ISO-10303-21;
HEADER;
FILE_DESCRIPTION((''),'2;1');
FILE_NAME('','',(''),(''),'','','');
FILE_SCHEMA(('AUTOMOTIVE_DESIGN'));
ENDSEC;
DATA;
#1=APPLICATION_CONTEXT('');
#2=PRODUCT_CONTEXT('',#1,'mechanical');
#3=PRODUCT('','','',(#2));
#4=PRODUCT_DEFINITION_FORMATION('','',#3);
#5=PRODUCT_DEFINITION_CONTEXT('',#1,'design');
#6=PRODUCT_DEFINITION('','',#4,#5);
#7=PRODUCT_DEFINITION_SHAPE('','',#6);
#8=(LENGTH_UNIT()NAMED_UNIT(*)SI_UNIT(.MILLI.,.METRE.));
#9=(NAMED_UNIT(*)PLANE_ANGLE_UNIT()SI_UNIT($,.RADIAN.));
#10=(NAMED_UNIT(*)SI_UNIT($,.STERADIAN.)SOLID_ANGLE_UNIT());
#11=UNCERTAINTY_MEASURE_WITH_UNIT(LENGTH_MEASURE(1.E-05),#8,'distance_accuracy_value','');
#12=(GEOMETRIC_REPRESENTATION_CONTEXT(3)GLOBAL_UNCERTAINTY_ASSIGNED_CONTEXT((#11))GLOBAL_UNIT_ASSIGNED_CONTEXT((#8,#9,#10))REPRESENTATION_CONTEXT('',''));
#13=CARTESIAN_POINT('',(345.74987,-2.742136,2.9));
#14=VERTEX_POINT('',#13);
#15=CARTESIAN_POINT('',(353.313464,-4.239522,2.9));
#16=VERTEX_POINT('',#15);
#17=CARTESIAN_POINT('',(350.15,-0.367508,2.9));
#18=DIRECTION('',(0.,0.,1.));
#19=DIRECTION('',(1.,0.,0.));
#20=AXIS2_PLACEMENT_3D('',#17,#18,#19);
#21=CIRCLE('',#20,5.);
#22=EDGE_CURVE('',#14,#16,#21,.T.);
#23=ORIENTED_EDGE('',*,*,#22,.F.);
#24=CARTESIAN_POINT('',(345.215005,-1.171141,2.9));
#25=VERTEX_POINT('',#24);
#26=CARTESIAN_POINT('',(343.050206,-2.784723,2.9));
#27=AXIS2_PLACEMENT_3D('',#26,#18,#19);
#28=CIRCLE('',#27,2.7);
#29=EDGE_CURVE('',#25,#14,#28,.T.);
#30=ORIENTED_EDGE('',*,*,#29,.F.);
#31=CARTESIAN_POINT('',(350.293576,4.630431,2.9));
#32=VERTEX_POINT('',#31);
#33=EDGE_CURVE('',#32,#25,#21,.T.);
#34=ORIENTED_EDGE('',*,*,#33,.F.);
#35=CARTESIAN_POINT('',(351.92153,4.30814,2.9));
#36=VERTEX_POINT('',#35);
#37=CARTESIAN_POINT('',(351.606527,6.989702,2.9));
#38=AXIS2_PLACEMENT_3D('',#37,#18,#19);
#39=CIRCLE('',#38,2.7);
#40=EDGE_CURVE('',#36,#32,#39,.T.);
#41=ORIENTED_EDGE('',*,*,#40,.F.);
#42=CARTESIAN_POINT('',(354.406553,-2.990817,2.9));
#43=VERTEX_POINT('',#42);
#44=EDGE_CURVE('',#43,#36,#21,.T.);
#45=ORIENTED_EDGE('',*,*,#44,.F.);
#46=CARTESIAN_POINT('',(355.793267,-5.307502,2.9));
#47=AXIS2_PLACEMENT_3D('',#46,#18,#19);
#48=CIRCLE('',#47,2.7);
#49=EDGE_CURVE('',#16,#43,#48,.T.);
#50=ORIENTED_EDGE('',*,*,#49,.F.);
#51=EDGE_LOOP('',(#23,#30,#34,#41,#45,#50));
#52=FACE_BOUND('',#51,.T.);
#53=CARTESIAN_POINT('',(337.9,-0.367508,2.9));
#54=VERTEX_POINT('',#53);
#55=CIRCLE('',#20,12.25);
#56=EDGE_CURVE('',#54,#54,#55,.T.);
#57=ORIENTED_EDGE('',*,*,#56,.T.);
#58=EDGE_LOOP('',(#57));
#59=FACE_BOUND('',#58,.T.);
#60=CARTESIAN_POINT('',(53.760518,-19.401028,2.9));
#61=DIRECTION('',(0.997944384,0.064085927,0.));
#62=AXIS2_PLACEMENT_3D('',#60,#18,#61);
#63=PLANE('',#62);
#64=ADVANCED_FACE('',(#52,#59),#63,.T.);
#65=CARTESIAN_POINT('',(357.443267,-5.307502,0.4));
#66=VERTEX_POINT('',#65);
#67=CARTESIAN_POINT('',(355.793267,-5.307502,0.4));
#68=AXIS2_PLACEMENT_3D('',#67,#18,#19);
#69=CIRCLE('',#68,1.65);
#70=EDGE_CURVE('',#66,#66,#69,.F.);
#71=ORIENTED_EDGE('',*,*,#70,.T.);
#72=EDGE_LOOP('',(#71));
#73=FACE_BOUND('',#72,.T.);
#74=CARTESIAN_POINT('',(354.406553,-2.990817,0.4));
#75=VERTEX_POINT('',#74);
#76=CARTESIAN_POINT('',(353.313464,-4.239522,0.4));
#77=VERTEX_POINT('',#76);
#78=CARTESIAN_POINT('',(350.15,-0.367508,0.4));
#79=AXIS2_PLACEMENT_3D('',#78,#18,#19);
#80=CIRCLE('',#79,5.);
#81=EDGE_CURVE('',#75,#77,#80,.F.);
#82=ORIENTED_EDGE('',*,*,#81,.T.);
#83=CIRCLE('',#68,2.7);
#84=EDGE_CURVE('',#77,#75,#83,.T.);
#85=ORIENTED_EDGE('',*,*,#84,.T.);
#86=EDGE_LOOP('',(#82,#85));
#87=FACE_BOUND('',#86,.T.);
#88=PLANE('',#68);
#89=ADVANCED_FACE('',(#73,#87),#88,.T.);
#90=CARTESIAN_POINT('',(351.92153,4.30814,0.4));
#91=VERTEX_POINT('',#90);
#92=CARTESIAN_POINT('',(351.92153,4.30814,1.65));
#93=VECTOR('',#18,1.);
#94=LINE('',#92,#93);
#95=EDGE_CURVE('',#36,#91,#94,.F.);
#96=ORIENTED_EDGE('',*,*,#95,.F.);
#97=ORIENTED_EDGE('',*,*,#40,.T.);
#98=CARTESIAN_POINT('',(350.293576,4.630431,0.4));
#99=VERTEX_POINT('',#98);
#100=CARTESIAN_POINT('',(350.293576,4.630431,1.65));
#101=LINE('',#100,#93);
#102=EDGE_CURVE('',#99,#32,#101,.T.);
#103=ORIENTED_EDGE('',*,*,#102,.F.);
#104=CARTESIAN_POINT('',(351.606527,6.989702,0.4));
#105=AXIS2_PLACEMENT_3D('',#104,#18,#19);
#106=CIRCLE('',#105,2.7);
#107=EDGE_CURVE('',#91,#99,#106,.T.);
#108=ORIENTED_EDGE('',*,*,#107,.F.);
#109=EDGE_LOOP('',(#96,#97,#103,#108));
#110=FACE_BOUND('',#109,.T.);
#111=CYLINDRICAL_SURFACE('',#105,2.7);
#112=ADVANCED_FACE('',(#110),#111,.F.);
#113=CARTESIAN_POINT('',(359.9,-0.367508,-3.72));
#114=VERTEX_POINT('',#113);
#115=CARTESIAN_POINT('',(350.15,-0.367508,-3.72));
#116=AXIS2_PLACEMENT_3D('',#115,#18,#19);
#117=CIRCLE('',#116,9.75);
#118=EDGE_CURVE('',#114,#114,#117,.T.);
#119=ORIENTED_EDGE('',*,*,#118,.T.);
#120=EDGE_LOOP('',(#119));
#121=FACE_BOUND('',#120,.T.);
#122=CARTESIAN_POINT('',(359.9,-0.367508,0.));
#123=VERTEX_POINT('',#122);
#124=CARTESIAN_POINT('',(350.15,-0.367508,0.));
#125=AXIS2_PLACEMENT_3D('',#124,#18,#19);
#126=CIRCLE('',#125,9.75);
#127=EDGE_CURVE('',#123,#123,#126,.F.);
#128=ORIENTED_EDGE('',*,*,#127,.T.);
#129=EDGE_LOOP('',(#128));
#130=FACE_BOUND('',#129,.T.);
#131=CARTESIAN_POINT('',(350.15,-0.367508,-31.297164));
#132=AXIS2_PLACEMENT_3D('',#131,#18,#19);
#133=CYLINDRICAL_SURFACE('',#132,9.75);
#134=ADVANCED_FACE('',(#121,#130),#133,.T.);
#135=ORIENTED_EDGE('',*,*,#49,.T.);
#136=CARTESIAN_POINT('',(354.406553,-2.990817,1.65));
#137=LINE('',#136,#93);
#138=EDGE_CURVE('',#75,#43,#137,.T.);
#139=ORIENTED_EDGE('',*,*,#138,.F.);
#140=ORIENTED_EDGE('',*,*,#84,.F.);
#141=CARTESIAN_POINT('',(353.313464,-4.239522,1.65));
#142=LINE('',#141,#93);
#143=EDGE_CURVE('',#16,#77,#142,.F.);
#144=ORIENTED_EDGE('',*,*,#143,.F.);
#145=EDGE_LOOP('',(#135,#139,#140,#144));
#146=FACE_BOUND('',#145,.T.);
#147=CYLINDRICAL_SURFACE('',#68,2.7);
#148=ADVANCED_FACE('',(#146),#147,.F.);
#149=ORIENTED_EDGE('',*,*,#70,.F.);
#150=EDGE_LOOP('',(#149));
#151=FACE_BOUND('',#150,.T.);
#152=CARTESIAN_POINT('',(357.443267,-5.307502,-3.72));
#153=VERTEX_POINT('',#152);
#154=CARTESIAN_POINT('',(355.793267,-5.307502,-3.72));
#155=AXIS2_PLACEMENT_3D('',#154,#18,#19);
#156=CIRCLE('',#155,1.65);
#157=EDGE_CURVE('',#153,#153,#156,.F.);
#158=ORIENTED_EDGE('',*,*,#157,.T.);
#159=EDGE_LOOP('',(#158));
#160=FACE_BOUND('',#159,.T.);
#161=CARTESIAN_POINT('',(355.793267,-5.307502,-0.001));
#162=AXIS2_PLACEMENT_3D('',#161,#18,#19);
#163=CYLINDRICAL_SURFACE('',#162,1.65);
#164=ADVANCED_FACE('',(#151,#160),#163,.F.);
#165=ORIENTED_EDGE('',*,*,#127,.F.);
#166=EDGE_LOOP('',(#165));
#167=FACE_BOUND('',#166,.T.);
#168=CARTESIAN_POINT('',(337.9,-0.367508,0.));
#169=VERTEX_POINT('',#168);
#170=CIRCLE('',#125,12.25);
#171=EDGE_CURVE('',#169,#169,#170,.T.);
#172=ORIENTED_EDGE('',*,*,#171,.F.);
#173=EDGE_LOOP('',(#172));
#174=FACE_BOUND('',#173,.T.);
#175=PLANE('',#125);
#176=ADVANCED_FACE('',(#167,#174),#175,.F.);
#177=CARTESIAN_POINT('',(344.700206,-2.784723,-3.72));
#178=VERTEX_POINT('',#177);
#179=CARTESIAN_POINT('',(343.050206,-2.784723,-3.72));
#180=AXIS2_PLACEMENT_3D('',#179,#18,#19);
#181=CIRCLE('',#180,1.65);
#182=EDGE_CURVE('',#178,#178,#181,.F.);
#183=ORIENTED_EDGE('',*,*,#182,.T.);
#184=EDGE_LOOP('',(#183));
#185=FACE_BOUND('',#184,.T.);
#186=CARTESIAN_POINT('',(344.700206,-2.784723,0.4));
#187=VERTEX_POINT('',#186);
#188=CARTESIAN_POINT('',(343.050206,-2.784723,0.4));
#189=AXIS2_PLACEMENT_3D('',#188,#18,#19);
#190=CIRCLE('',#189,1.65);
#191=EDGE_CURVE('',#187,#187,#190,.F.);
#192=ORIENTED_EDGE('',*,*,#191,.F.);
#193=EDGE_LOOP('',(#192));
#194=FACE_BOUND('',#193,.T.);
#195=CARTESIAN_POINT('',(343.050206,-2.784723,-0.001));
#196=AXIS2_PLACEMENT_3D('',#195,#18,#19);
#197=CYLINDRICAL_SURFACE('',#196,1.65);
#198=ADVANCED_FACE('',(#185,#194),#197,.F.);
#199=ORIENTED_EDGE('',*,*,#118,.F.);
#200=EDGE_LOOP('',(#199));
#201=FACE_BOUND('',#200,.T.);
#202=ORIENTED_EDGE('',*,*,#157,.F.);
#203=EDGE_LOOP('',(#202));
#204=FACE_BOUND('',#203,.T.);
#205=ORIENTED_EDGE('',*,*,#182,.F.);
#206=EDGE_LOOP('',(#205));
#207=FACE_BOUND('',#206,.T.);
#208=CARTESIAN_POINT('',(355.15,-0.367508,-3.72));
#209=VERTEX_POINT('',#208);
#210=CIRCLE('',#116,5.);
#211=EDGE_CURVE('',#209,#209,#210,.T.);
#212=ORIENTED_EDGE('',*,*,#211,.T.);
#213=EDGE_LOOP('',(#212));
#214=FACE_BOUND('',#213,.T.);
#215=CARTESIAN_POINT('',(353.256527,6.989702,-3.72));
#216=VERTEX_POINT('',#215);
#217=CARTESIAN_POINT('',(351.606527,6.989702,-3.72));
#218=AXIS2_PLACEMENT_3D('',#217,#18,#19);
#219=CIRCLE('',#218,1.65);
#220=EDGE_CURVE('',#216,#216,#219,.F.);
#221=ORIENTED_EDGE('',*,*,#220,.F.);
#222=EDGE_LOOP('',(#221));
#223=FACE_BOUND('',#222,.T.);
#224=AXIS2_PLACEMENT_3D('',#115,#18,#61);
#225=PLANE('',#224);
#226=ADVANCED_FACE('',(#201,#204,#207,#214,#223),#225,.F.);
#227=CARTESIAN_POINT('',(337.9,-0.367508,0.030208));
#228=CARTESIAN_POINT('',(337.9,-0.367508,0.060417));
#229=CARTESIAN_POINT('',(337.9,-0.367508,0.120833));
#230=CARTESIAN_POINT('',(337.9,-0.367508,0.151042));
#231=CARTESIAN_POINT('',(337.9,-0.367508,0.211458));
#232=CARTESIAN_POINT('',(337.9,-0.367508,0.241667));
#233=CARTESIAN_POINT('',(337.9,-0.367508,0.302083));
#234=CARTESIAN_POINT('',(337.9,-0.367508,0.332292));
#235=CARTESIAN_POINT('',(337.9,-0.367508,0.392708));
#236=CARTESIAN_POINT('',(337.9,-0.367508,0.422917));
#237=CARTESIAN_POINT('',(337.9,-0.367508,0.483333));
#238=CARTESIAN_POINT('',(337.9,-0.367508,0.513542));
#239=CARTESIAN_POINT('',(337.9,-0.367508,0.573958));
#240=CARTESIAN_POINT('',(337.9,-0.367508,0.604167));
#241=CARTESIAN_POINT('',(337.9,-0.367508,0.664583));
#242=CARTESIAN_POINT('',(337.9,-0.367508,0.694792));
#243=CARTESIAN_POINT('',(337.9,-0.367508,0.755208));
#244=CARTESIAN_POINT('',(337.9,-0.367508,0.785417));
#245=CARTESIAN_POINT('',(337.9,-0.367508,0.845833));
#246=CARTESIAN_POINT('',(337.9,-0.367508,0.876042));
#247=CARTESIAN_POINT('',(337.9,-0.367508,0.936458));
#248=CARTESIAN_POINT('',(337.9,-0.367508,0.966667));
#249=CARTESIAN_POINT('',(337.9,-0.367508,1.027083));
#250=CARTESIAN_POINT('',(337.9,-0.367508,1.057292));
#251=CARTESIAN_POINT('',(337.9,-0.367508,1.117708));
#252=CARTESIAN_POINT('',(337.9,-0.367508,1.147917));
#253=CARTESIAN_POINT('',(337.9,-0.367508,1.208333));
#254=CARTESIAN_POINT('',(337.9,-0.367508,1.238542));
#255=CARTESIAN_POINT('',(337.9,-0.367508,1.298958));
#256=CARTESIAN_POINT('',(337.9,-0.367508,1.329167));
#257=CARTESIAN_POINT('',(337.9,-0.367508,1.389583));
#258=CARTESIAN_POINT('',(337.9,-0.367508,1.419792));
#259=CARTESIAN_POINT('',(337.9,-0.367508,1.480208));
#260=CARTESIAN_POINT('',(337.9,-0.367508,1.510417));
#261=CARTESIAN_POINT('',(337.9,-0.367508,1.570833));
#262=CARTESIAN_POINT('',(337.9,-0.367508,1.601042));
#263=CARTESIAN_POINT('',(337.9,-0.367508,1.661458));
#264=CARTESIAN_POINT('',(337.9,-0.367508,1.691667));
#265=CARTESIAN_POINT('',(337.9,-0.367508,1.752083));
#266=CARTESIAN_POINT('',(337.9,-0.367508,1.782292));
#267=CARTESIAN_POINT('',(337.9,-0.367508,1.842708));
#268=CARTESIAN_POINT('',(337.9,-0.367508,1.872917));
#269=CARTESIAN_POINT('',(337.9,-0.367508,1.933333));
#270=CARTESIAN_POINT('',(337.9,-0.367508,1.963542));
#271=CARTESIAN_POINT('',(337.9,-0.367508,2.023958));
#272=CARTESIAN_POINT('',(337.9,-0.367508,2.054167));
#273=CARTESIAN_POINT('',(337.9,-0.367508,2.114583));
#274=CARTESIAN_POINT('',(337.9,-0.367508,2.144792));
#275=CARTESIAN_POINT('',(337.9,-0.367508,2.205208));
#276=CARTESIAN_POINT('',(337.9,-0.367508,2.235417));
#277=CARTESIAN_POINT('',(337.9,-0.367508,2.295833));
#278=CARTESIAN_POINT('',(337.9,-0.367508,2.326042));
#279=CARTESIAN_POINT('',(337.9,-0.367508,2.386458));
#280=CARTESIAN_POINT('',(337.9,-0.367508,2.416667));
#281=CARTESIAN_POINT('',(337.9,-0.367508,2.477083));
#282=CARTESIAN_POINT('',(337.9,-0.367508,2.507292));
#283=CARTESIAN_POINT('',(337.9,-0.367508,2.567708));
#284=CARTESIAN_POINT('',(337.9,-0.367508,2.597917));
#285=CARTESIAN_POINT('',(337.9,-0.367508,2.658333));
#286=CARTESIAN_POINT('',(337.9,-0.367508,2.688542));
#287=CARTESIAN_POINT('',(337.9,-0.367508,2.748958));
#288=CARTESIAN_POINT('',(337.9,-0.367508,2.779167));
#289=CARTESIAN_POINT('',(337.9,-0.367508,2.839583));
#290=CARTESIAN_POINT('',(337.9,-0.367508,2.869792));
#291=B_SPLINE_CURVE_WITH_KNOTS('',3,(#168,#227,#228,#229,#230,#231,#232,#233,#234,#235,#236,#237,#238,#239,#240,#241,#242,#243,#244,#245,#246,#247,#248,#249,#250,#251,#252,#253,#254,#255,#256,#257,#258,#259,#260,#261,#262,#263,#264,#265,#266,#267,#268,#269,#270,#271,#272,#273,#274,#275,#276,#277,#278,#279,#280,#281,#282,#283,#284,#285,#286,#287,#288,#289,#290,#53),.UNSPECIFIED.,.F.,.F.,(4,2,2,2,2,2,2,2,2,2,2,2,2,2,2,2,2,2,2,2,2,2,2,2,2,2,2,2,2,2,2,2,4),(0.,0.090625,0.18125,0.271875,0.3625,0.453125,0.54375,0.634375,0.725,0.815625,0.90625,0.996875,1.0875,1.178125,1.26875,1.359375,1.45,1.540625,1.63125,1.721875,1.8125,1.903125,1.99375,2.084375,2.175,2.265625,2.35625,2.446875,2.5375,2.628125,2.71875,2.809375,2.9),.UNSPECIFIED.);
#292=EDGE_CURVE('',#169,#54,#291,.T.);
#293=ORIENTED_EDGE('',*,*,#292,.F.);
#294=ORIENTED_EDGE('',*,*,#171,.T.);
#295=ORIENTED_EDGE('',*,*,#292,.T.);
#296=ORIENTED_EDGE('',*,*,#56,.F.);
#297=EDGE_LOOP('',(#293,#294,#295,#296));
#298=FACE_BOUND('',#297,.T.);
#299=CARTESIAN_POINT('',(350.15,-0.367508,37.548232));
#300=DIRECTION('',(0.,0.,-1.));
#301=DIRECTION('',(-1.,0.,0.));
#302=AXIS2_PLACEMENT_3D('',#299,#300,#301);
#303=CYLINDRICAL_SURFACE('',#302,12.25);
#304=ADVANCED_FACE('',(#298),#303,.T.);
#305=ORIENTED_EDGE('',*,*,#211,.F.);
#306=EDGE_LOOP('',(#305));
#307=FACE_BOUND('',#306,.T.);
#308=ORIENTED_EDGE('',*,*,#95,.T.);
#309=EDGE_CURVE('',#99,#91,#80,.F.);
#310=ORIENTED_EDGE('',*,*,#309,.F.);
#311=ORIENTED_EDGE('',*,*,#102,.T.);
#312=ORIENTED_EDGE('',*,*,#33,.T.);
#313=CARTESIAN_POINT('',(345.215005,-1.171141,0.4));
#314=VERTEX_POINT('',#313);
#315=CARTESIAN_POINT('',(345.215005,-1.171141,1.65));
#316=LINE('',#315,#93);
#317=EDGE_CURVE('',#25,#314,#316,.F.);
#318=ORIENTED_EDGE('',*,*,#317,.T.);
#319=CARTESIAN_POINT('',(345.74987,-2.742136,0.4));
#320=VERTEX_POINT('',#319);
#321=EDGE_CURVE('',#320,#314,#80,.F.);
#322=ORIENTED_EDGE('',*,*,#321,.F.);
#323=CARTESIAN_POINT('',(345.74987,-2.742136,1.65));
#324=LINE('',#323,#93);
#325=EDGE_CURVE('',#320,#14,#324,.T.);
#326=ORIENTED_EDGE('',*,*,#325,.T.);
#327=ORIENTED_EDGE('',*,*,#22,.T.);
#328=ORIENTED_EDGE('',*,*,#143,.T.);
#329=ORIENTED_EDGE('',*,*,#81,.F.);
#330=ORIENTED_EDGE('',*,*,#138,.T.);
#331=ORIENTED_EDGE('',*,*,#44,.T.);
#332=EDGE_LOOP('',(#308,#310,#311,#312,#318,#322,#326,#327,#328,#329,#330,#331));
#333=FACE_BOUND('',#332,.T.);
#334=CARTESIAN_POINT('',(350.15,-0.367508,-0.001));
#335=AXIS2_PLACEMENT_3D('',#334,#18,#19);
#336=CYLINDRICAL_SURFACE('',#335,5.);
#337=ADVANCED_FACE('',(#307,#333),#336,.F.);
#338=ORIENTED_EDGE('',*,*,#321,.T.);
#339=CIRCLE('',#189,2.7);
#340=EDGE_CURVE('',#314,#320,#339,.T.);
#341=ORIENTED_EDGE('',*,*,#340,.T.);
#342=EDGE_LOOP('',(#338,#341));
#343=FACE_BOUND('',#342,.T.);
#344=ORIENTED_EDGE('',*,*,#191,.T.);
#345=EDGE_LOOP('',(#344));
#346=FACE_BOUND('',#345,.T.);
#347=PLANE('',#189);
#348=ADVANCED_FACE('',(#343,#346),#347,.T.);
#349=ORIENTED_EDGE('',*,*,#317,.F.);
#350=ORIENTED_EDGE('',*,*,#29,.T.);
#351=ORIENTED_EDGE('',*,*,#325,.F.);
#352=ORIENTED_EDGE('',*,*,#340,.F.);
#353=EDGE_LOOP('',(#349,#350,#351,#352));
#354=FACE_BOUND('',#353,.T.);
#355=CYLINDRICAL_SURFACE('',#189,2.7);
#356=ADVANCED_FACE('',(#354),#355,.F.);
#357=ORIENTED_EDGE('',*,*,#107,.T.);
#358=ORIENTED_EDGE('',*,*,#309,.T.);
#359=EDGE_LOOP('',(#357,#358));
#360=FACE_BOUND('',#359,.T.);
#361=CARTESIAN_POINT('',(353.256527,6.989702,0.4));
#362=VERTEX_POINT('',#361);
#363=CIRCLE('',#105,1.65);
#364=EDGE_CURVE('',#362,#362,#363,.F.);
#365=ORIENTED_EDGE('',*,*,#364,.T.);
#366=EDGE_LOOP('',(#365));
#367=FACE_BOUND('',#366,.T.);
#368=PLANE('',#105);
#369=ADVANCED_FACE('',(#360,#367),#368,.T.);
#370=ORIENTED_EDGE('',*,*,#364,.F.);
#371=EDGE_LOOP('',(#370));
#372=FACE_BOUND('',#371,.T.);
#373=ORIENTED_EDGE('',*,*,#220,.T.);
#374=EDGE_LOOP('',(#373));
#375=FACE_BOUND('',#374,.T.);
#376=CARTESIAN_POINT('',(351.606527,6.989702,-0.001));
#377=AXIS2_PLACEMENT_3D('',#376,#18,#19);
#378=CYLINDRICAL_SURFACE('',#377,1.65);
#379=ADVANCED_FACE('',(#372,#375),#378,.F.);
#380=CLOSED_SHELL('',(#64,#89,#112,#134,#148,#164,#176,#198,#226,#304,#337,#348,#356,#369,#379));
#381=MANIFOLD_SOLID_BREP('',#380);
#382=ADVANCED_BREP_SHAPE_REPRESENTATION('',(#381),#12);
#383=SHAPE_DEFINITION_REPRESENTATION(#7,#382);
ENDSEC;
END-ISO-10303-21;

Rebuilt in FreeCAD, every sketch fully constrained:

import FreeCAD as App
import Part
import Sketcher
from FreeCAD import Vector

doc = App.newDocument("Part")
body = doc.addObject("PartDesign::Body", "Body")

sketch1 = doc.addObject("Sketcher::SketchObject", "Sketch")
body.addObject(sketch1)
sketch1.AttachmentSupport = (doc.XY_Plane, [""])
sketch1.MapMode = "FlatFace"
sketch1.addGeometry(Part.Circle(Vector(350.15, -0.367508, 0), Vector(0, 0, 1), 12.25), False)
sketch1.addConstraint([
    Sketcher.Constraint("Diameter", 0, 24.5),
    Sketcher.Constraint("DistanceX", -1, 1, 0, 3, 350.15),
    Sketcher.Constraint("DistanceY", 0, 3, -1, 1, 0.367508),
])
pad1 = doc.addObject("PartDesign::Pad", "Pad")
body.addObject(pad1)
pad1.Profile = sketch1
pad1.Length = 2.9

sketch2 = doc.addObject("Sketcher::SketchObject", "Sketch001")
body.addObject(sketch2)
sketch2.AttachmentSupport = (doc.XY_Plane, [""])
sketch2.MapMode = "FlatFace"
sketch2.AttachmentOffset = App.Placement(Vector(0, 0, 2.9), App.Rotation())
sketch2.addGeometry(Part.Circle(Vector(350.15, -0.367508, 0), Vector(0, 0, 1), 5), False)
sketch2.addConstraint([
    Sketcher.Constraint("Diameter", 0, 10.0),
    Sketcher.Constraint("DistanceX", -1, 1, 0, 3, 350.15),
    Sketcher.Constraint("DistanceY", 0, 3, -1, 1, 0.367508),
])
pocket1 = doc.addObject("PartDesign::Pocket", "Pocket")
body.addObject(pocket1)
pocket1.Profile = sketch2
pocket1.Type = "UpToFirst"

sketch3 = doc.addObject("Sketcher::SketchObject", "Sketch002")
body.addObject(sketch3)
sketch3.AttachmentSupport = (doc.XY_Plane, [""])
sketch3.MapMode = "FlatFace"
sketch3.AttachmentOffset = App.Placement(Vector(0, 0, 2.9), App.Rotation())
sketch3.addGeometry(Part.Circle(Vector(343.050206, -2.784723, 0), Vector(0, 0, 1), 1.65), False)
sketch3.addConstraint([
    Sketcher.Constraint("Diameter", 0, 3.3),
    Sketcher.Constraint("DistanceX", -1, 1, 0, 3, 343.050206),
    Sketcher.Constraint("DistanceY", 0, 3, -1, 1, 2.784723),
])
pocket2 = doc.addObject("PartDesign::Pocket", "Pocket001")
body.addObject(pocket2)
pocket2.Profile = sketch3
pocket2.Type = "UpToFirst"

sketch4 = doc.addObject("Sketcher::SketchObject", "Sketch003")
body.addObject(sketch4)
sketch4.AttachmentSupport = (doc.XY_Plane, [""])
sketch4.MapMode = "FlatFace"
sketch4.AttachmentOffset = App.Placement(Vector(0, 0, 2.9), App.Rotation())
sketch4.addGeometry(Part.Circle(Vector(355.793267, -5.307502, 0), Vector(0, 0, 1), 1.65), False)
sketch4.addConstraint([
    Sketcher.Constraint("Diameter", 0, 3.3),
    Sketcher.Constraint("DistanceY", 0, 3, -1, 1, 5.307502),
    Sketcher.Constraint("DistanceX", -1, 1, 0, 3, 355.793267),
])
pocket3 = doc.addObject("PartDesign::Pocket", "Pocket002")
body.addObject(pocket3)
pocket3.Profile = sketch4
pocket3.Type = "UpToFirst"

sketch5 = doc.addObject("Sketcher::SketchObject", "Sketch004")
body.addObject(sketch5)
sketch5.AttachmentSupport = (doc.XY_Plane, [""])
sketch5.MapMode = "FlatFace"
sketch5.AttachmentOffset = App.Placement(Vector(0, 0, 2.9), App.Rotation())
sketch5.addGeometry(Part.Circle(Vector(351.606527, 6.989702, 0), Vector(0, 0, 1), 1.65), False)
sketch5.addConstraint([
    Sketcher.Constraint("Diameter", 0, 3.3),
    Sketcher.Constraint("DistanceY", -1, 1, 0, 3, 6.989702),
    Sketcher.Constraint("DistanceX", -1, 1, 0, 3, 351.606527),
])
pocket4 = doc.addObject("PartDesign::Pocket", "Pocket003")
body.addObject(pocket4)
pocket4.Profile = sketch5
pocket4.Type = "UpToFirst"

sketch6 = doc.addObject("Sketcher::SketchObject", "Sketch005")
body.addObject(sketch6)
sketch6.AttachmentSupport = (doc.XY_Plane, [""])
sketch6.MapMode = "FlatFace"
sketch6.addGeometry([
    Part.Circle(Vector(350.15, -0.367508, 0), Vector(0, 0, 1), 9.75),
    Part.Circle(Vector(350.15, -0.367508, 0), Vector(0, 0, 1), 5),
], False)
sketch6.addConstraint([
    Sketcher.Constraint("Coincident", 1, 3, 0, 3),
    Sketcher.Constraint("Diameter", 1, 10.0),
    Sketcher.Constraint("Diameter", 0, 19.5),
    Sketcher.Constraint("DistanceX", -1, 1, 0, 3, 350.15),
    Sketcher.Constraint("DistanceY", 0, 3, -1, 1, 0.367508),
])
pad2 = doc.addObject("PartDesign::Pad", "Pad001")
body.addObject(pad2)
pad2.Profile = sketch6
pad2.Length = 3.72
pad2.Reversed = True

sketch7 = doc.addObject("Sketcher::SketchObject", "Sketch006")
body.addObject(sketch7)
sketch7.AttachmentSupport = (doc.XY_Plane, [""])
sketch7.MapMode = "FlatFace"
sketch7.addGeometry([
    Part.Circle(Vector(351.606527, 6.989702, 0), Vector(0, 0, 1), 1.65),
    Part.Circle(Vector(343.050206, -2.784723, 0), Vector(0, 0, 1), 1.65),
    Part.Circle(Vector(355.793267, -5.307502, 0), Vector(0, 0, 1), 1.65),
], False)
sketch7.addConstraint([
    Sketcher.Constraint("Equal", 0, 1),
    Sketcher.Constraint("Equal", 1, 2),
    Sketcher.Constraint("Diameter", 0, 3.3),
    Sketcher.Constraint("DistanceY", -1, 1, 0, 3, 6.989702),
    Sketcher.Constraint("DistanceY", 2, 3, -1, 1, 5.307502),
    Sketcher.Constraint("DistanceX", 1, 3, 0, 3, 8.556321),
    Sketcher.Constraint("DistanceX", 0, 3, 2, 3, 4.186739),
    Sketcher.Constraint("DistanceY", 2, 3, 1, 3, 2.522779),
    Sketcher.Constraint("DistanceX", -1, 1, 0, 3, 351.606527),
])
pocket5 = doc.addObject("PartDesign::Pocket", "Pocket004")
body.addObject(pocket5)
pocket5.Profile = sketch7
pocket5.Length = 3.72

sketch8 = doc.addObject("Sketcher::SketchObject", "Sketch007")
body.addObject(sketch8)
sketch8.AttachmentSupport = (doc.XY_Plane, [""])
sketch8.MapMode = "FlatFace"
sketch8.AttachmentOffset = App.Placement(Vector(0, 0, 2.9), App.Rotation())
sketch8.addGeometry([
    Part.Circle(Vector(351.606527, 6.989702, 0), Vector(0, 0, 1), 2.7),
    Part.Circle(Vector(355.793267, -5.307502, 0), Vector(0, 0, 1), 2.7),
    Part.Circle(Vector(343.050206, -2.784723, 0), Vector(0, 0, 1), 2.7),
], False)
sketch8.addConstraint([
    Sketcher.Constraint("Equal", 0, 1),
    Sketcher.Constraint("Equal", 1, 2),
    Sketcher.Constraint("Diameter", 0, 5.4),
    Sketcher.Constraint("DistanceY", -1, 1, 0, 3, 6.989702),
    Sketcher.Constraint("DistanceY", 1, 3, -1, 1, 5.307502),
    Sketcher.Constraint("DistanceX", 0, 3, 1, 3, 4.186739),
    Sketcher.Constraint("DistanceX", 2, 3, 1, 3, 12.74306),
    Sketcher.Constraint("DistanceY", 1, 3, 2, 3, 2.522779),
    Sketcher.Constraint("DistanceX", -1, 1, 0, 3, 351.606527),
])
pocket6 = doc.addObject("PartDesign::Pocket", "Pocket005")
body.addObject(pocket6)
pocket6.Profile = sketch8
pocket6.Length = 2.5

doc.recompute()
